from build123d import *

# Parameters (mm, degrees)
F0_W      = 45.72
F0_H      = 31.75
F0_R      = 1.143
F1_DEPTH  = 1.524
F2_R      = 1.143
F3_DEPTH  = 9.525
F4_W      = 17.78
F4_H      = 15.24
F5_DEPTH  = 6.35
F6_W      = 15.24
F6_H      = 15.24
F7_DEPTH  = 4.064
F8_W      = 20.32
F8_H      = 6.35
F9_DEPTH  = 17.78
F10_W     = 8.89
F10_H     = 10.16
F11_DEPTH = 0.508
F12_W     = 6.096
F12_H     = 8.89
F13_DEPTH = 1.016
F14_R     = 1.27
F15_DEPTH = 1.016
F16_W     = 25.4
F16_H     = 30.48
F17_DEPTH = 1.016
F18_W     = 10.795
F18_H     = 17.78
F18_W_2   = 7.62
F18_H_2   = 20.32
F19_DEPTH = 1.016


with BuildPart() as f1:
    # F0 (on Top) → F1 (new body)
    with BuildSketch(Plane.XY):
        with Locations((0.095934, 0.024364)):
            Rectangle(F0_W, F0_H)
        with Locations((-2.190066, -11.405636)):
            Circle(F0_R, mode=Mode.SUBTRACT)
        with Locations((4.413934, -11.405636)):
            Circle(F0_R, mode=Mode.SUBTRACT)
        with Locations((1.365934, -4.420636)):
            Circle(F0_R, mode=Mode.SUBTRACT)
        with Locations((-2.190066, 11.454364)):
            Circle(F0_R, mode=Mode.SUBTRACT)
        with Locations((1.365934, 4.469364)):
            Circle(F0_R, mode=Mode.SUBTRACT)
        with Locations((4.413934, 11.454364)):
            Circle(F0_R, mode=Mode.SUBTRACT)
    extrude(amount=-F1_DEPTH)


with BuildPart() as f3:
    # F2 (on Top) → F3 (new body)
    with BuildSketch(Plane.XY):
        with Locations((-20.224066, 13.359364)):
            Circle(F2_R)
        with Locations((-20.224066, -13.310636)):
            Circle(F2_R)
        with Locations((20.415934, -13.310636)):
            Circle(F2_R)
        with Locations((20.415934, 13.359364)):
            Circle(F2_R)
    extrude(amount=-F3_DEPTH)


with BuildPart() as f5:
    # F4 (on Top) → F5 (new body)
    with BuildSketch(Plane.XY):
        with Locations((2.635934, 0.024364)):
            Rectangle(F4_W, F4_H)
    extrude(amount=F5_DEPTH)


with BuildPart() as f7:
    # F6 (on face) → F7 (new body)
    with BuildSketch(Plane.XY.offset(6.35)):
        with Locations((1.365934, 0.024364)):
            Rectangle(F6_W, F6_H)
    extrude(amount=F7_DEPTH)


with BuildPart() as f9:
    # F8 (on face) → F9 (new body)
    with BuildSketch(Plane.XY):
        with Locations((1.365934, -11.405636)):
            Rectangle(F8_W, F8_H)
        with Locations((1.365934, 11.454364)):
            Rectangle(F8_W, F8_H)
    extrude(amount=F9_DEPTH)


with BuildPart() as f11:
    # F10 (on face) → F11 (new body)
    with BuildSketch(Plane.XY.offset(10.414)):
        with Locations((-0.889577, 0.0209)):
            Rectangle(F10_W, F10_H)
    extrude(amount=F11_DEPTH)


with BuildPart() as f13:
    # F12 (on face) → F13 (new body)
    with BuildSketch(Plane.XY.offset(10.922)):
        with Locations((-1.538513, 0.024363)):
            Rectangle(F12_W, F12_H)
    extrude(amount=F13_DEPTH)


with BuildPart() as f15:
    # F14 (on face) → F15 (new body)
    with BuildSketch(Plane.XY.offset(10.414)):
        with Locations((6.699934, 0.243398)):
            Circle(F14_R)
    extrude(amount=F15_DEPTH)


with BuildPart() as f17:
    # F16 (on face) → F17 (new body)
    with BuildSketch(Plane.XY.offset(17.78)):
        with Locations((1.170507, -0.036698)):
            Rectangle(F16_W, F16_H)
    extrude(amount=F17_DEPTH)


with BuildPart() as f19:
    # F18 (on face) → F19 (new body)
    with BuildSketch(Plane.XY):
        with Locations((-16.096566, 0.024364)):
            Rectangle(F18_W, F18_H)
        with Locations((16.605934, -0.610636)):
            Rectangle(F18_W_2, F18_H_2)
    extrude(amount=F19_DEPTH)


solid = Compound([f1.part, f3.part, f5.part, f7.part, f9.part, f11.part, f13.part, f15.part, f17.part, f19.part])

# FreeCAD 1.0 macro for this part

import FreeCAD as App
import Part
import Sketcher

V = App.Vector
Q = App.Units.Quantity


def add_polygon(sketch, points):
    """Adds a closed chain of lines whose ends are joined by coincident constraints."""
    first, n = sketch.GeometryCount, len(points)
    for a, b in zip(points, points[1:] + points[:1]):
        sketch.addGeometry(Part.LineSegment(App.Vector(*a, 0), App.Vector(*b, 0)), False)
    for i in range(n):
        sketch.addConstraint(Sketcher.Constraint("Coincident", first + i, 2, first + (i + 1) % n, 1))

doc = App.newDocument("Part")
body = doc.addObject("PartDesign::Body", "Body")

# Sketch on XY plane
sketch1 = doc.addObject("Sketcher::SketchObject", "Sketch")
body.addObject(sketch1)
sketch1.AttachmentSupport = (doc.XY_Plane, [""])
sketch1.MapMode = "FlatFace"
add_polygon(sketch1, [(-22.8, 15.9), (-22.8, -15.9), (23, -15.9), (23, 15.9)])  # lines 0-3
sketch1.addGeometry(Part.Circle(V(-2.2, -11.4, 0), V(0, 0, 1), 1.1), False)  # 4
sketch1.addGeometry(Part.Circle(V(4.4, -11.4, 0), V(0, 0, 1), 1.1), False)  # 5
sketch1.addGeometry(Part.Circle(V(1.4, -4.4, 0), V(0, 0, 1), 1.1), False)  # 6
sketch1.addGeometry(Part.Circle(V(-2.2, 11.5, 0), V(0, 0, 1), 1.1), False)  # 7
sketch1.addGeometry(Part.Circle(V(1.4, 4.5, 0), V(0, 0, 1), 1.1), False)  # 8
sketch1.addGeometry(Part.Circle(V(4.4, 11.5, 0), V(0, 0, 1), 1.1), False)  # 9
sketch1.addConstraint([
    Sketcher.Constraint("Vertical", 0),
    Sketcher.Constraint("Horizontal", 1),
    Sketcher.Constraint("Vertical", 2),
    Sketcher.Constraint("Horizontal", 3),
    Sketcher.Constraint("Equal", 4, 5),
    Sketcher.Constraint("Equal", 5, 6),
    Sketcher.Constraint("Equal", 6, 7),
    Sketcher.Constraint("Equal", 7, 8),
    Sketcher.Constraint("Equal", 8, 9),
    Sketcher.Constraint("Horizontal", 4, 3, 5, 3),
    Sketcher.Constraint("Horizontal", 7, 3, 9, 3),
    Sketcher.Constraint("Vertical", 4, 3, 7, 3),
    Sketcher.Constraint("Vertical", 6, 3, 8, 3),
    Sketcher.Constraint("Vertical", 5, 3, 9, 3),
    Sketcher.Constraint("Diameter", 4, Q("0.09 in")),
    Sketcher.Constraint("DistanceX", 1, 1, 1, 2, Q("1.8 in")),
    Sketcher.Constraint("DistanceY", 0, 2, 0, 1, Q("1.25 in")),
    Sketcher.Constraint("DistanceY", 4, 3, 7, 3, Q("0.9 in")),
    Sketcher.Constraint("DistanceY", 0, 2, 8, 3, Q("0.8 in")),
    Sketcher.Constraint("DistanceY", 6, 3, 2, 2, Q("0.8 in")),
    Sketcher.Constraint("DistanceX", 4, 3, 5, 3, Q("0.26 in")),
    Sketcher.Constraint("DistanceX", 6, 3, 5, 3, Q("0.12 in")),
    Sketcher.Constraint("DistanceX", 0, 2, 4, 3, Q("0.81 in")),
    Sketcher.Constraint("DistanceY", 5, 3, 6, 3, Q("0.275 in")),
    Sketcher.Constraint("DistanceX", 4, 3, -1, 1, 2.190066),
    Sketcher.Constraint("DistanceY", 4, 3, -1, 1, 11.405636),
])
pad1 = doc.addObject("PartDesign::Pad", "Pad")
body.addObject(pad1)
pad1.Profile = sketch1
pad1.Length = Q("0.06 in")
pad1.Reversed = True
body2 = doc.addObject("PartDesign::Body", "Body001")
body2.AllowCompound = True

# Sketch on XY plane
sketch2 = doc.addObject("Sketcher::SketchObject", "Sketch001")
body2.addObject(sketch2)
sketch2.AttachmentSupport = (doc.getObject("XY_Plane001"), [""])
sketch2.MapMode = "FlatFace"
sketch2.addGeometry([
    Part.Circle(V(-20.2, 13.4, 0), V(0, 0, 1), 1.1),
    Part.Circle(V(-20.2, -13.3, 0), V(0, 0, 1), 1.1),
    Part.Circle(V(20.4, -13.3, 0), V(0, 0, 1), 1.1),
    Part.Circle(V(20.4, 13.4, 0), V(0, 0, 1), 1.1),
], False)
sketch2.addConstraint([
    Sketcher.Constraint("Equal", 0, 1),
    Sketcher.Constraint("Equal", 1, 2),
    Sketcher.Constraint("Equal", 2, 3),
    Sketcher.Constraint("Horizontal", 1, 3, 2, 3),
    Sketcher.Constraint("Horizontal", 0, 3, 3, 3),
    Sketcher.Constraint("Vertical", 0, 3, 1, 3),
    Sketcher.Constraint("Vertical", 2, 3, 3, 3),
    Sketcher.Constraint("Diameter", 0, Q("0.09 in")),
    Sketcher.Constraint("DistanceX", 1, 3, 2, 3, Q("1.6 in")),
    Sketcher.Constraint("DistanceY", 1, 3, 0, 3, Q("1.05 in")),
    Sketcher.Constraint("DistanceX", 0, 3, -1, 1, 20.224066),
    Sketcher.Constraint("DistanceY", -1, 1, 0, 3, 13.359364),
])
pad2 = doc.addObject("PartDesign::Pad", "Pad001")
body2.addObject(pad2)
pad2.Profile = sketch2
pad2.Length = Q("0.375 in")
pad2.Reversed = True
body3 = doc.addObject("PartDesign::Body", "Body002")

# Sketch on XY plane
sketch3 = doc.addObject("Sketcher::SketchObject", "Sketch002")
body3.addObject(sketch3)
sketch3.AttachmentSupport = (doc.getObject("XY_Plane002"), [""])
sketch3.MapMode = "FlatFace"
add_polygon(sketch3, [(-6, 8), (-6, -8), (12, -8), (12, 8)])  # lines 0-3
sketch3.addConstraint([
    Sketcher.Constraint("Vertical", 0),
    Sketcher.Constraint("Horizontal", 1),
    Sketcher.Constraint("Vertical", 2),
    Sketcher.Constraint("Horizontal", 3),
    Sketcher.Constraint("DistanceX", 1, 1, 1, 2, Q("0.7 in")),
    Sketcher.Constraint("DistanceY", 0, 2, 0, 1, Q("0.6 in")),
    Sketcher.Constraint("DistanceX", 0, 2, -1, 1, 6.254066),
    Sketcher.Constraint("DistanceY", 0, 2, -1, 1, 7.595636),
])
pad3 = doc.addObject("PartDesign::Pad", "Pad002")
body3.addObject(pad3)
pad3.Profile = sketch3
pad3.Length = Q("0.25 in")
body4 = doc.addObject("PartDesign::Body", "Body003")

# Sketch on XY plane
sketch4 = doc.addObject("Sketcher::SketchObject", "Sketch003")
body4.addObject(sketch4)
sketch4.AttachmentSupport = (doc.getObject("XY_Plane003"), [""])
sketch4.MapMode = "FlatFace"
sketch4.AttachmentOffset = App.Placement(V(0, 0, 0.25 * 25.4), App.Rotation())
add_polygon(sketch4, [(-6, 8), (-6, -8), (9, -8), (9, 8)])  # lines 0-3
sketch4.addConstraint([
    Sketcher.Constraint("Vertical", 0),
    Sketcher.Constraint("Horizontal", 1),
    Sketcher.Constraint("Vertical", 2),
    Sketcher.Constraint("Horizontal", 3),
    Sketcher.Constraint("Equal", 3, 0),
    Sketcher.Constraint("DistanceX", 1, 1, 1, 2, Q("0.6 in")),
    Sketcher.Constraint("DistanceX", 0, 2, -1, 1, 6.254066),
    Sketcher.Constraint("DistanceY", 0, 2, -1, 1, 7.595636),
])
pad4 = doc.addObject("PartDesign::Pad", "Pad003")
body4.addObject(pad4)
pad4.Profile = sketch4
pad4.Length = Q("0.16 in")
body5 = doc.addObject("PartDesign::Body", "Body004")
body5.AllowCompound = True

# Sketch on XY plane
sketch5 = doc.addObject("Sketcher::SketchObject", "Sketch004")
body5.addObject(sketch5)
sketch5.AttachmentSupport = (doc.getObject("XY_Plane004"), [""])
sketch5.MapMode = "FlatFace"
add_polygon(sketch5, [(-9, -8), (-9, -15), (12, -15), (12, -8)])  # lines 0-3
add_polygon(sketch5, [(-9, 15), (-9, 8), (12, 8), (12, 15)])  # lines 4-7
sketch5.addConstraint([
    Sketcher.Constraint("Vertical", 0),
    Sketcher.Constraint("Horizontal", 1),
    Sketcher.Constraint("Vertical", 2),
    Sketcher.Constraint("Horizontal", 3),
    Sketcher.Constraint("Vertical", 4),
    Sketcher.Constraint("Horizontal", 5),
    Sketcher.Constraint("Vertical", 6),
    Sketcher.Constraint("Horizontal", 7),
    Sketcher.Constraint("Vertical", 3, 2, 4, 2),
    Sketcher.Constraint("Vertical", 2, 2, 5, 2),
    Sketcher.Constraint("Equal", 2, 4),
    Sketcher.Constraint("DistanceX", 1, 1, 1, 2, Q("0.8 in")),
    Sketcher.Constraint("DistanceY", 0, 2, 0, 1, Q("0.25 in")),
    Sketcher.Constraint("DistanceY", 0, 2, 4, 2, Q("0.9 in")),
    Sketcher.Constraint("DistanceX", 0, 2, -1, 1, 8.794066),
    Sketcher.Constraint("DistanceY", 0, 2, -1, 1, 14.580636),
])
pad5 = doc.addObject("PartDesign::Pad", "Pad004")
body5.addObject(pad5)
pad5.Profile = sketch5
pad5.Length = Q("0.7 in")
body6 = doc.addObject("PartDesign::Body", "Body005")

# Sketch on XY plane
sketch6 = doc.addObject("Sketcher::SketchObject", "Sketch005")
body6.addObject(sketch6)
sketch6.AttachmentSupport = (doc.getObject("XY_Plane005"), [""])
sketch6.MapMode = "FlatFace"
sketch6.AttachmentOffset = App.Placement(V(0, 0, 0.41 * 25.4), App.Rotation())
add_polygon(sketch6, [(-5, 5), (-5, -5), (4, -5), (4, 5)])  # lines 0-3
sketch6.addConstraint([
    Sketcher.Constraint("Vertical", 0),
    Sketcher.Constraint("Horizontal", 1),
    Sketcher.Constraint("Vertical", 2),
    Sketcher.Constraint("Horizontal", 3),
    Sketcher.Constraint("DistanceY", 0, 2, 0, 1, Q("0.4 in")),
    Sketcher.Constraint("DistanceX", 1, 1, 1, 2, Q("0.35 in")),
    Sketcher.Constraint("DistanceY", 0, 2, -1, 1, 5.0591),
    Sketcher.Constraint("DistanceX", 0, 2, -1, 1, 5.334577),
])
pad6 = doc.addObject("PartDesign::Pad", "Pad005")
body6.addObject(pad6)
pad6.Profile = sketch6
pad6.Length = Q("0.02 in")
body7 = doc.addObject("PartDesign::Body", "Body006")

# Sketch on XY plane
sketch7 = doc.addObject("Sketcher::SketchObject", "Sketch006")
body7.addObject(sketch7)
sketch7.AttachmentSupport = (doc.getObject("XY_Plane006"), [""])
sketch7.MapMode = "FlatFace"
sketch7.AttachmentOffset = App.Placement(V(0, 0, 0.43 * 25.4), App.Rotation())
add_polygon(sketch7, [(-5, 4), (-5, -4), (2, -4), (2, 4)])  # lines 0-3
sketch7.addConstraint([
    Sketcher.Constraint("Vertical", 0),
    Sketcher.Constraint("Horizontal", 1),
    Sketcher.Constraint("Vertical", 2),
    Sketcher.Constraint("Horizontal", 3),
    Sketcher.Constraint("DistanceX", 1, 1, 1, 2, Q("0.24 in")),
    Sketcher.Constraint("DistanceY", 0, 2, 0, 1, Q("0.35 in")),
    Sketcher.Constraint("DistanceX", 0, 2, -1, 1, 4.586513),
    Sketcher.Constraint("DistanceY", 0, 2, -1, 1, 4.420637),
])
pad7 = doc.addObject("PartDesign::Pad", "Pad006")
body7.addObject(pad7)
pad7.Profile = sketch7
pad7.Length = Q("0.04 in")
body8 = doc.addObject("PartDesign::Body", "Body007")

# Sketch on XY plane
sketch8 = doc.addObject("Sketcher::SketchObject", "Sketch007")
body8.addObject(sketch8)
sketch8.AttachmentSupport = (doc.getObject("XY_Plane007"), [""])
sketch8.MapMode = "FlatFace"
sketch8.AttachmentOffset = App.Placement(V(0, 0, 0.41 * 25.4), App.Rotation())
sketch8.addGeometry(Part.Circle(V(6.7, 0.2, 0), V(0, 0, 1), 1.3), False)
sketch8.addConstraint([
    Sketcher.Constraint("Diameter", 0, Q("0.1 in")),
    Sketcher.Constraint("DistanceX", -1, 1, 0, 3, 6.699934),
    Sketcher.Constraint("DistanceY", -1, 1, 0, 3, 0.243398),
])
pad8 = doc.addObject("PartDesign::Pad", "Pad007")
body8.addObject(pad8)
pad8.Profile = sketch8
pad8.Length = Q("0.04 in")
body9 = doc.addObject("PartDesign::Body", "Body008")

# Sketch on XY plane
sketch9 = doc.addObject("Sketcher::SketchObject", "Sketch008")
body9.addObject(sketch9)
sketch9.AttachmentSupport = (doc.getObject("XY_Plane008"), [""])
sketch9.MapMode = "FlatFace"
sketch9.AttachmentOffset = App.Placement(V(0, 0, 0.7 * 25.4), App.Rotation())
add_polygon(sketch9, [(-12, 15), (-12, -15), (14, -15), (14, 15)])  # lines 0-3
sketch9.addConstraint([
    Sketcher.Constraint("Vertical", 0),
    Sketcher.Constraint("Horizontal", 1),
    Sketcher.Constraint("Vertical", 2),
    Sketcher.Constraint("Horizontal", 3),
    Sketcher.Constraint("DistanceX", 1, 1, 1, 2, Q("1 in")),
    Sketcher.Constraint("DistanceY", 0, 2, 0, 1, Q("1.2 in")),
    Sketcher.Constraint("DistanceX", 0, 2, -1, 1, 11.529493),
    Sketcher.Constraint("DistanceY", 0, 2, -1, 1, 15.276698),
])
pad9 = doc.addObject("PartDesign::Pad", "Pad008")
body9.addObject(pad9)
pad9.Profile = sketch9
pad9.Length = Q("0.04 in")
body10 = doc.addObject("PartDesign::Body", "Body009")
body10.AllowCompound = True

# Sketch on XY plane
sketch10 = doc.addObject("Sketcher::SketchObject", "Sketch009")
body10.addObject(sketch10)
sketch10.AttachmentSupport = (doc.getObject("XY_Plane009"), [""])
sketch10.MapMode = "FlatFace"
add_polygon(sketch10, [(-21, 9), (-21, -9), (-11, -9), (-11, 9)])  # lines 0-3
add_polygon(sketch10, [(13, 10), (13, -11), (20, -11), (20, 10)])  # lines 4-7
sketch10.addConstraint([
    Sketcher.Constraint("Vertical", 0),
    Sketcher.Constraint("Horizontal", 1),
    Sketcher.Constraint("Vertical", 2),
    Sketcher.Constraint("Horizontal", 3),
    Sketcher.Constraint("Vertical", 4),
    Sketcher.Constraint("Horizontal", 5),
    Sketcher.Constraint("Vertical", 6),
    Sketcher.Constraint("Horizontal", 7),
    Sketcher.Constraint("DistanceX", 5, 1, 5, 2, Q("0.3 in")),
    Sketcher.Constraint("DistanceY", 0, 2, 0, 1, Q("0.7 in")),
    Sketcher.Constraint("DistanceY", 4, 2, 4, 1, Q("0.8 in")),
    Sketcher.Constraint("DistanceX", 1, 1, 1, 2, Q("0.425 in")),
    Sketcher.Constraint("DistanceX", 0, 2, 4, 2, Q("1.35 in")),
    Sketcher.Constraint("DistanceY", 4, 2, 1, 2, Q("0.075 in")),
    Sketcher.Constraint("DistanceX", 0, 2, -1, 1, 21.494066),
    Sketcher.Constraint("DistanceY", 0, 2, -1, 1, 8.865636),
])
pad10 = doc.addObject("PartDesign::Pad", "Pad009")
body10.addObject(pad10)
pad10.Profile = sketch10
pad10.Length = Q("0.04 in")

doc.recompute()
